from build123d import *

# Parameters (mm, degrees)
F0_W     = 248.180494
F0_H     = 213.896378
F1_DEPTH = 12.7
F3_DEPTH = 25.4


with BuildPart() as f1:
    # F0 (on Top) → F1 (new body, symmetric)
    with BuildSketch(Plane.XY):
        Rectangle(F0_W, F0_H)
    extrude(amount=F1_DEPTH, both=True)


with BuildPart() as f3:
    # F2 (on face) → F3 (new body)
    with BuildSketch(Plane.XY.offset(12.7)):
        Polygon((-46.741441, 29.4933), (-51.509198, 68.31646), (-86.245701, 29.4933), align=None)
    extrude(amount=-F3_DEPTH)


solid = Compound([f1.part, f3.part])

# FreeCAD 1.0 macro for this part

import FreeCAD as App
import Part
import Sketcher

V = App.Vector
Q = App.Units.Quantity


def add_polygon(sketch, points):
    """Adds a closed chain of lines whose ends are joined by coincident constraints."""
    first, n = sketch.GeometryCount, len(points)
    for a, b in zip(points, points[1:] + points[:1]):
        sketch.addGeometry(Part.LineSegment(App.Vector(*a, 0), App.Vector(*b, 0)), False)
    for i in range(n):
        sketch.addConstraint(Sketcher.Constraint("Coincident", first + i, 2, first + (i + 1) % n, 1))

doc = App.newDocument("Part")
params = doc.addObject("Spreadsheet::Sheet", "Params")
for row, (alias, value) in enumerate([
    ("pad1_length", "1 in"),
    ("pad2_length", "1 in"),
], start=1):
    params.set(f"A{row}", alias)
    params.set(f"B{row}", "=" + value)
    params.setAlias(f"B{row}", alias)

body = doc.addObject("PartDesign::Body", "Body")

# Sketch on XY plane
sketch1 = body.newObject("Sketcher::SketchObject", "Sketch")
sketch1.AttachmentSupport = (doc.getObject("XY_Plane"), [""])
sketch1.MapMode = "FlatFace"
add_polygon(sketch1, [(-124, 107), (-124, -107), (124, -107), (124, 107)])  # lines 0-3
sketch1.addConstraint([
    Sketcher.Constraint("Vertical", 0),
    Sketcher.Constraint("Horizontal", 1),
    Sketcher.Constraint("Vertical", 2),
    Sketcher.Constraint("Horizontal", 3),
    Sketcher.Constraint("Symmetric", 0, 2, 2, 2, -1, 1),
    Sketcher.Constraint("DistanceY", 0, 2, 0, 1, 213.896378),
    Sketcher.Constraint("DistanceX", 1, 1, 1, 2, 248.180494),
])
pad1 = body.newObject("PartDesign::Pad", "Pad")
pad1.Profile = sketch1
pad1.setExpression("Length", "Params.pad1_length")
pad1.Midplane = True
body2 = doc.addObject("PartDesign::Body", "Body001")

# Sketch on XY plane
sketch2 = body2.newObject("Sketcher::SketchObject", "Sketch001")
sketch2.AttachmentSupport = (doc.getObject("XY_Plane001"), [""])
sketch2.MapMode = "FlatFace"
sketch2.AttachmentOffset = App.Placement(V(0, 0, 0.5 * 25.4), App.Rotation())
add_polygon(sketch2, [(-47, 29), (-52, 68), (-86, 29)])  # lines 0-2
sketch2.addConstraint([
    Sketcher.Constraint("Horizontal", 2),
    Sketcher.Constraint("DistanceX", 1, 2, -1, 1, Q("3.3955 in")),
    Sketcher.Constraint("DistanceX", 2, 1, 2, 2, 39.50426),
    Sketcher.Constraint("DistanceY", -1, 1, 1, 2, 29.4933),
    Sketcher.Constraint("Distance", 0, 39.114821),
    Sketcher.Constraint("DistanceY", -1, 1, 0, 2, 68.31646),
])
pad2 = body2.newObject("PartDesign::Pad", "Pad001")
pad2.Profile = sketch2
pad2.setExpression("Length", "Params.pad2_length")
pad2.Reversed = True

doc.recompute()
